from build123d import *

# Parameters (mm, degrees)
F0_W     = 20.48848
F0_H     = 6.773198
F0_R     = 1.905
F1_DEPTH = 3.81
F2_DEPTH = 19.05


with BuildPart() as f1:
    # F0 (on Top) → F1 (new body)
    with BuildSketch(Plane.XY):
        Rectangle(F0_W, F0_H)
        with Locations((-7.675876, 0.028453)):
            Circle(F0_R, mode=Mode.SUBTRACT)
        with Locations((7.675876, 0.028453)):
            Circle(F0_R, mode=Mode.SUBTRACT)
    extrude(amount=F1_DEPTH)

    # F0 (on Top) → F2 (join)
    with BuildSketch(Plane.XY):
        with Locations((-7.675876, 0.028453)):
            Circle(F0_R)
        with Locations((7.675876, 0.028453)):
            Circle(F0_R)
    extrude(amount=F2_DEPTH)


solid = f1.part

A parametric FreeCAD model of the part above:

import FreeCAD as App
import Part
import Sketcher

V = App.Vector
Q = App.Units.Quantity


def add_polygon(sketch, points):
    """Adds a closed chain of lines whose ends are joined by coincident constraints."""
    first, n = sketch.GeometryCount, len(points)
    for a, b in zip(points, points[1:] + points[:1]):
        sketch.addGeometry(Part.LineSegment(App.Vector(*a, 0), App.Vector(*b, 0)), False)
    for i in range(n):
        sketch.addConstraint(Sketcher.Constraint("Coincident", first + i, 2, first + (i + 1) % n, 1))

doc = App.newDocument("Part")
body = doc.addObject("PartDesign::Body", "Body")

# Sketch on XY plane
sketch1 = doc.addObject("Sketcher::SketchObject", "Sketch")
body.addObject(sketch1)
sketch1.AttachmentSupport = (doc.XY_Plane, [""])
sketch1.MapMode = "FlatFace"
add_polygon(sketch1, [(-10.24424, 3.386599), (-10.24424, -3.386599), (10.24424, -3.386599), (10.24424, 3.386599)])  # lines 0-3
sketch1.addGeometry(Part.Circle(V(-7.675876, 0.028453, 0), V(0, 0, 1), 1.905), False)  # 4
sketch1.addGeometry(Part.Circle(V(7.675876, 0.028453, 0), V(0, 0, 1), 1.905), False)  # 5
sketch1.addConstraint([
    Sketcher.Constraint("Vertical", 0),
    Sketcher.Constraint("Horizontal", 1),
    Sketcher.Constraint("Vertical", 2),
    Sketcher.Constraint("Horizontal", 3),
    Sketcher.Constraint("Equal", 4, 5),
    Sketcher.Constraint("Symmetric", 0, 2, 2, 2, -1, 1),
    Sketcher.Constraint("Symmetric", 4, 3, 5, 3, -2),
    Sketcher.Constraint("Diameter", 4, Q("0.15 in")),
    Sketcher.Constraint("DistanceX", 4, 3, -1, 1, Q("0.3021998 in")),
    Sketcher.Constraint("DistanceX", 1, 1, 1, 2, 20.48848),
    Sketcher.Constraint("DistanceY", 0, 2, -1, 1, 3.386599),
    Sketcher.Constraint("DistanceY", 0, 2, 4, 3, 3.415052),
])
pad1 = doc.addObject("PartDesign::Pad", "Pad")
body.addObject(pad1)
pad1.Profile = sketch1
pad1.Length = Q("0.15 in")

# Sketch on XY plane
sketch2 = doc.addObject("Sketcher::SketchObject", "Sketch001")
body.addObject(sketch2)
sketch2.AttachmentSupport = (doc.XY_Plane, [""])
sketch2.MapMode = "FlatFace"
sketch2.addGeometry([
    Part.Circle(V(-7.675876, 0.028453, 0), V(0, 0, 1), 1.905),
    Part.Circle(V(7.675876, 0.028453, 0), V(0, 0, 1), 1.905),
], False)
sketch2.addConstraint([
    Sketcher.Constraint("Equal", 0, 1),
    Sketcher.Constraint("Symmetric", 0, 3, 1, 3, -2),
    Sketcher.Constraint("Diameter", 0, Q("0.15 in")),
    Sketcher.Constraint("DistanceX", 0, 3, -1, 1, Q("0.3021998 in")),
    Sketcher.Constraint("DistanceY", -1, 1, 0, 3, 0.028453),
])
pad2 = doc.addObject("PartDesign::Pad", "Pad001")
body.addObject(pad2)
pad2.Profile = sketch2
pad2.Length = Q("0.75 in")

doc.recompute()
